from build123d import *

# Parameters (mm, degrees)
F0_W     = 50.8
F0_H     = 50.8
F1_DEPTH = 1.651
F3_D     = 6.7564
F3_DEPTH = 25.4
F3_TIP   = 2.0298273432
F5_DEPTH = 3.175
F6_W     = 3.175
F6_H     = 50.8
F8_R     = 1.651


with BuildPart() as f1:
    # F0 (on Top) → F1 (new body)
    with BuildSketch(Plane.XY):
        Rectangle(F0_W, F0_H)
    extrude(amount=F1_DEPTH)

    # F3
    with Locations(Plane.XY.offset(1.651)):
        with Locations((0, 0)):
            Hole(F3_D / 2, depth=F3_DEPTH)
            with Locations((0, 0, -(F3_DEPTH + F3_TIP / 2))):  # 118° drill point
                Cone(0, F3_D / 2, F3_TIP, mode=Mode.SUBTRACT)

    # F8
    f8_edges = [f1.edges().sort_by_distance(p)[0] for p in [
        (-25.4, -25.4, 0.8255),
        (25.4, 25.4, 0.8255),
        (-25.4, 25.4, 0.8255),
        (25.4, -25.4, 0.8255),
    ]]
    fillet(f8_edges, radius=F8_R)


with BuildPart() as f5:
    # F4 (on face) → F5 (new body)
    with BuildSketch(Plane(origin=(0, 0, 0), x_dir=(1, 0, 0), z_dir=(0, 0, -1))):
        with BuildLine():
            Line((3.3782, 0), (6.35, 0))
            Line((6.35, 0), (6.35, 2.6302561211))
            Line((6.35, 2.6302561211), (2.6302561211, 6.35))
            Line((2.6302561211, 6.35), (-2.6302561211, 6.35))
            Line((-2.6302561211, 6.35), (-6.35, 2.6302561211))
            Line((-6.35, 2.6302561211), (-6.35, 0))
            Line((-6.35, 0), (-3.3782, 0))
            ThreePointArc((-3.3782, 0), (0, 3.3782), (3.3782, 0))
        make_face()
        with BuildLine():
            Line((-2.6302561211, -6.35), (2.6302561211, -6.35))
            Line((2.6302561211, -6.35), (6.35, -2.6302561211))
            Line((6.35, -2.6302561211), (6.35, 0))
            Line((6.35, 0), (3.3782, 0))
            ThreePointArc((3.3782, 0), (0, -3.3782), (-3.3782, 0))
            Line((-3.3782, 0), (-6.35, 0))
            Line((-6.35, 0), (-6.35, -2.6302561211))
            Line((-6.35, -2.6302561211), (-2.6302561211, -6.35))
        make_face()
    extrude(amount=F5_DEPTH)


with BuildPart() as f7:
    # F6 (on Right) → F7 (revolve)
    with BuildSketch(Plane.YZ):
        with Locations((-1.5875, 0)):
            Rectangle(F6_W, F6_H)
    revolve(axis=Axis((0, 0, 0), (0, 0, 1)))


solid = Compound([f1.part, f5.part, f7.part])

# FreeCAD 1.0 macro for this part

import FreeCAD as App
import Part
import Sketcher
from FreeCAD import Vector
Q = App.Units.Quantity


def edges_at(feature, points):
    """Names of the edges that pass closest to the given points."""
    edges = feature.Shape.Edges
    near = lambda p: min(range(len(edges)), key=lambda i: edges[i].distToShape(Part.Vertex(*p))[0])
    return sorted({f"Edge{near(p) + 1}" for p in points})

doc = App.newDocument("Part")
body = doc.addObject("PartDesign::Body", "Body")

sketch1 = doc.addObject("Sketcher::SketchObject", "Sketch")
body.addObject(sketch1)
sketch1.AttachmentSupport = (doc.XY_Plane, [""])
sketch1.MapMode = "FlatFace"
sketch1.addGeometry(Part.LineSegment(Vector(-25, 25, 0), Vector(-25, -25, 0)), False)
sketch1.addGeometry(Part.LineSegment(Vector(-25, -25, 0), Vector(25, -25, 0)), False)
sketch1.addGeometry(Part.LineSegment(Vector(25, -25, 0), Vector(25, 25, 0)), False)
sketch1.addGeometry(Part.LineSegment(Vector(25, 25, 0), Vector(-25, 25, 0)), False)
sketch1.addConstraint(Sketcher.Constraint("Coincident", 0, 2, 1, 1))
sketch1.addConstraint(Sketcher.Constraint("Coincident", 1, 2, 2, 1))
sketch1.addConstraint(Sketcher.Constraint("Coincident", 2, 2, 3, 1))
sketch1.addConstraint(Sketcher.Constraint("Coincident", 3, 2, 0, 1))
sketch1.addConstraint(Sketcher.Constraint("Vertical", 0))
sketch1.addConstraint(Sketcher.Constraint("Horizontal", 1))
sketch1.addConstraint(Sketcher.Constraint("Vertical", 2))
sketch1.addConstraint(Sketcher.Constraint("Horizontal", 3))
sketch1.addConstraint(Sketcher.Constraint("Symmetric", 0, 2, 2, 2, -1, 1))
sketch1.addConstraint(Sketcher.Constraint("Equal", 3, 0))
sketch1.addConstraint(Sketcher.Constraint("DistanceX", 1, 1, 1, 2, Q("2 in")))
pad1 = doc.addObject("PartDesign::Pad", "Pad")
body.addObject(pad1)
pad1.Profile = sketch1
pad1.Length = Q("0.065 in")

sketch2 = doc.addObject("Sketcher::SketchObject", "Sketch001")
body.addObject(sketch2)
sketch2.AttachmentSupport = (doc.XY_Plane, [""])
sketch2.MapMode = "FlatFace"
sketch2.AttachmentOffset = App.Placement(Vector(0, 0, 0.065 * 25.4), App.Rotation())
sketch2.addGeometry(Part.Circle(Vector(0, 0, 0), Vector(0, 0, 1), 3.4), False)
sketch2.addConstraint(Sketcher.Constraint("Coincident", 0, 3, -1, 1))
sketch2.addConstraint(Sketcher.Constraint("Diameter", 0, Q("0.266 in")))
doc.recompute()
hole = doc.addObject("PartDesign::Hole", "Hole")
body.addObject(hole)
hole.Profile = sketch2
hole.ThreadType = "None"
hole.Diameter = Q("0.266 in")
hole.DepthType = "Dimension"
hole.Depth = Q("1 in")
hole.DrillPoint = "Angled"
hole.DrillPointAngle = 118
doc.recompute()

fillet = doc.addObject("PartDesign::Fillet", "Fillet")
body.addObject(fillet)
fillet.Base = (hole, edges_at(hole, [
    (-25.4, -25.4, 0.826),
    (25.4, 25.4, 0.826),
    (-25.4, 25.4, 0.826),
    (25.4, -25.4, 0.826),
]))
fillet.Radius = Q("0.065 in")
body2 = doc.addObject("PartDesign::Body", "Body001")

sketch3 = doc.addObject("Sketcher::SketchObject", "Sketch002")
body2.addObject(sketch3)
sketch3.AttachmentSupport = (doc.getObject("XY_Plane001"), [""])
sketch3.MapMode = "FlatFace"
sketch3.addGeometry(Part.LineSegment(Vector(6.3, -2.6, 0), Vector(2.6, -6.3, 0)), False)
sketch3.addGeometry(Part.LineSegment(Vector(2.6, -6.3, 0), Vector(-2.6, -6.3, 0)), False)
sketch3.addGeometry(Part.LineSegment(Vector(-2.6, -6.3, 0), Vector(-6.3, -2.6, 0)), False)
sketch3.addGeometry(Part.LineSegment(Vector(-6.3, -2.6, 0), Vector(-6.3, 2.6, 0)), False)
sketch3.addGeometry(Part.LineSegment(Vector(-6.3, 2.6, 0), Vector(-2.6, 6.3, 0)), False)
sketch3.addGeometry(Part.LineSegment(Vector(-2.6, 6.3, 0), Vector(2.6, 6.3, 0)), False)
sketch3.addGeometry(Part.LineSegment(Vector(2.6, 6.3, 0), Vector(6.3, 2.6, 0)), False)
sketch3.addGeometry(Part.LineSegment(Vector(6.3, 2.6, 0), Vector(6.3, -2.6, 0)), False)
sketch3.addGeometry(Part.Circle(Vector(0, 0, 0), Vector(0, 0, 1), 3.4), False)
sketch3.addConstraint(Sketcher.Constraint("Coincident", 0, 2, 1, 1))
sketch3.addConstraint(Sketcher.Constraint("Coincident", 1, 2, 2, 1))
sketch3.addConstraint(Sketcher.Constraint("Coincident", 2, 2, 3, 1))
sketch3.addConstraint(Sketcher.Constraint("Coincident", 3, 2, 4, 1))
sketch3.addConstraint(Sketcher.Constraint("Coincident", 4, 2, 5, 1))
sketch3.addConstraint(Sketcher.Constraint("Coincident", 5, 2, 6, 1))
sketch3.addConstraint(Sketcher.Constraint("Coincident", 6, 2, 7, 1))
sketch3.addConstraint(Sketcher.Constraint("Coincident", 7, 2, 0, 1))
sketch3.addConstraint(Sketcher.Constraint("Horizontal", 1))
sketch3.addConstraint(Sketcher.Constraint("Vertical", 3))
sketch3.addConstraint(Sketcher.Constraint("Horizontal", 5))
sketch3.addConstraint(Sketcher.Constraint("Vertical", 7))
sketch3.addConstraint(Sketcher.Constraint("Coincident", 8, 3, -1, 1))
sketch3.addConstraint(Sketcher.Constraint("Symmetric", 0, 2, 4, 2, -1, 1))
sketch3.addConstraint(Sketcher.Constraint("Symmetric", 2, 2, 6, 2, -1, 1))
sketch3.addConstraint(Sketcher.Constraint("Perpendicular", 0, 2))
sketch3.addConstraint(Sketcher.Constraint("Perpendicular", 2, 4))
sketch3.addConstraint(Sketcher.Constraint("Perpendicular", 4, 6))
sketch3.addConstraint(Sketcher.Constraint("Horizontal", 3, 2, 6, 2))
sketch3.addConstraint(Sketcher.Constraint("Vertical", 1, 2, 4, 2))
sketch3.addConstraint(Sketcher.Constraint("Equal", 5, 3))
sketch3.addConstraint(Sketcher.Constraint("Diameter", 8, Q("0.266 in")))
sketch3.addConstraint(Sketcher.Constraint("DistanceY", 1, 2, 4, 2, Q("0.5 in")))
sketch3.addConstraint(Sketcher.Constraint("DistanceX", 1, 2, 1, 1, Q("5.260512 mm")))
pad2 = doc.addObject("PartDesign::Pad", "Pad001")
body2.addObject(pad2)
pad2.Profile = sketch3
pad2.Length = Q("0.125 in")
pad2.Reversed = True
body3 = doc.addObject("PartDesign::Body", "Body002")

sketch4 = doc.addObject("Sketcher::SketchObject", "Sketch003")
body3.addObject(sketch4)
sketch4.AttachmentSupport = (doc.getObject("YZ_Plane002"), [""])
sketch4.MapMode = "FlatFace"
sketch4.addGeometry(Part.LineSegment(Vector(-3.2, 25.4, 0), Vector(-3.2, -25.4, 0)), False)
sketch4.addGeometry(Part.LineSegment(Vector(-3.2, -25.4, 0), Vector(0, -25.4, 0)), False)
sketch4.addGeometry(Part.LineSegment(Vector(0, -25.4, 0), Vector(0, 25.4, 0)), False)
sketch4.addGeometry(Part.LineSegment(Vector(0, 25.4, 0), Vector(-3.2, 25.4, 0)), False)
sketch4.addConstraint(Sketcher.Constraint("Coincident", 0, 2, 1, 1))
sketch4.addConstraint(Sketcher.Constraint("Coincident", 1, 2, 2, 1))
sketch4.addConstraint(Sketcher.Constraint("Coincident", 2, 2, 3, 1))
sketch4.addConstraint(Sketcher.Constraint("Coincident", 3, 2, 0, 1))
sketch4.addConstraint(Sketcher.Constraint("Vertical", 0))
sketch4.addConstraint(Sketcher.Constraint("Horizontal", 1))
sketch4.addConstraint(Sketcher.Constraint("Vertical", 2))
sketch4.addConstraint(Sketcher.Constraint("Horizontal", 3))
sketch4.addConstraint(Sketcher.Constraint("Symmetric", 1, 2, 2, 2, -1, 1))
sketch4.addConstraint(Sketcher.Constraint("DistanceY", 0, 2, 0, 1, Q("2 in")))
sketch4.addConstraint(Sketcher.Constraint("DistanceX", 1, 1, 1, 2, Q("0.125 in")))
revolution = doc.addObject("PartDesign::Revolution", "Revolution")
body3.addObject(revolution)
revolution.Profile = sketch4
revolution.ReferenceAxis = (sketch4, ["V_Axis"])
revolution.Angle = 360

doc.recompute()
